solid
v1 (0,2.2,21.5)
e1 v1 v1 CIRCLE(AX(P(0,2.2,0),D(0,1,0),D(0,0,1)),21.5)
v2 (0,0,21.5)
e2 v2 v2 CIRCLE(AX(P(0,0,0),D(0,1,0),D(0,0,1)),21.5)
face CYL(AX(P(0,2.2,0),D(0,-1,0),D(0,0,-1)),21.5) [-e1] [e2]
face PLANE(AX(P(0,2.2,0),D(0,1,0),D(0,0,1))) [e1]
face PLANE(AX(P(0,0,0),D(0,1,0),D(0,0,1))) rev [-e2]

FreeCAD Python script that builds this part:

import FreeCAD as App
import Part
import Sketcher
from FreeCAD import Vector
Q = App.Units.Quantity

doc = App.newDocument("Part")
params = doc.addObject("Spreadsheet::Sheet", "Params")
for row, (alias, value) in enumerate([
    ("sketch1_diameter", "43 mm"),
    ("pad1_length", "2.2 mm"),
], start=1):
    params.set(f"A{row}", alias)
    params.set(f"B{row}", "=" + value)
    params.setAlias(f"B{row}", alias)

body = doc.addObject("PartDesign::Body", "Body")

# Sketch on XZ plane
sketch1 = body.newObject("Sketcher::SketchObject", "Sketch")
sketch1.AttachmentSupport = (doc.getObject("XZ_Plane"), [""])
sketch1.MapMode = "FlatFace"
sketch1.addGeometry(Part.Circle(Vector(0, 0, 0), Vector(0, 0, 1), 22), False)
sketch1.addConstraint([
    Sketcher.Constraint("Coincident", 0, 3, -1, 1),
    Sketcher.Constraint("Diameter", 0, Q("43 mm")),
])
sketch1.setExpression("Constraints[1]", "Params.sketch1_diameter")
pad1 = body.newObject("PartDesign::Pad", "Pad")
pad1.Profile = sketch1
pad1.setExpression("Length", "Params.pad1_length")
pad1.Reversed = True

doc.recompute()
